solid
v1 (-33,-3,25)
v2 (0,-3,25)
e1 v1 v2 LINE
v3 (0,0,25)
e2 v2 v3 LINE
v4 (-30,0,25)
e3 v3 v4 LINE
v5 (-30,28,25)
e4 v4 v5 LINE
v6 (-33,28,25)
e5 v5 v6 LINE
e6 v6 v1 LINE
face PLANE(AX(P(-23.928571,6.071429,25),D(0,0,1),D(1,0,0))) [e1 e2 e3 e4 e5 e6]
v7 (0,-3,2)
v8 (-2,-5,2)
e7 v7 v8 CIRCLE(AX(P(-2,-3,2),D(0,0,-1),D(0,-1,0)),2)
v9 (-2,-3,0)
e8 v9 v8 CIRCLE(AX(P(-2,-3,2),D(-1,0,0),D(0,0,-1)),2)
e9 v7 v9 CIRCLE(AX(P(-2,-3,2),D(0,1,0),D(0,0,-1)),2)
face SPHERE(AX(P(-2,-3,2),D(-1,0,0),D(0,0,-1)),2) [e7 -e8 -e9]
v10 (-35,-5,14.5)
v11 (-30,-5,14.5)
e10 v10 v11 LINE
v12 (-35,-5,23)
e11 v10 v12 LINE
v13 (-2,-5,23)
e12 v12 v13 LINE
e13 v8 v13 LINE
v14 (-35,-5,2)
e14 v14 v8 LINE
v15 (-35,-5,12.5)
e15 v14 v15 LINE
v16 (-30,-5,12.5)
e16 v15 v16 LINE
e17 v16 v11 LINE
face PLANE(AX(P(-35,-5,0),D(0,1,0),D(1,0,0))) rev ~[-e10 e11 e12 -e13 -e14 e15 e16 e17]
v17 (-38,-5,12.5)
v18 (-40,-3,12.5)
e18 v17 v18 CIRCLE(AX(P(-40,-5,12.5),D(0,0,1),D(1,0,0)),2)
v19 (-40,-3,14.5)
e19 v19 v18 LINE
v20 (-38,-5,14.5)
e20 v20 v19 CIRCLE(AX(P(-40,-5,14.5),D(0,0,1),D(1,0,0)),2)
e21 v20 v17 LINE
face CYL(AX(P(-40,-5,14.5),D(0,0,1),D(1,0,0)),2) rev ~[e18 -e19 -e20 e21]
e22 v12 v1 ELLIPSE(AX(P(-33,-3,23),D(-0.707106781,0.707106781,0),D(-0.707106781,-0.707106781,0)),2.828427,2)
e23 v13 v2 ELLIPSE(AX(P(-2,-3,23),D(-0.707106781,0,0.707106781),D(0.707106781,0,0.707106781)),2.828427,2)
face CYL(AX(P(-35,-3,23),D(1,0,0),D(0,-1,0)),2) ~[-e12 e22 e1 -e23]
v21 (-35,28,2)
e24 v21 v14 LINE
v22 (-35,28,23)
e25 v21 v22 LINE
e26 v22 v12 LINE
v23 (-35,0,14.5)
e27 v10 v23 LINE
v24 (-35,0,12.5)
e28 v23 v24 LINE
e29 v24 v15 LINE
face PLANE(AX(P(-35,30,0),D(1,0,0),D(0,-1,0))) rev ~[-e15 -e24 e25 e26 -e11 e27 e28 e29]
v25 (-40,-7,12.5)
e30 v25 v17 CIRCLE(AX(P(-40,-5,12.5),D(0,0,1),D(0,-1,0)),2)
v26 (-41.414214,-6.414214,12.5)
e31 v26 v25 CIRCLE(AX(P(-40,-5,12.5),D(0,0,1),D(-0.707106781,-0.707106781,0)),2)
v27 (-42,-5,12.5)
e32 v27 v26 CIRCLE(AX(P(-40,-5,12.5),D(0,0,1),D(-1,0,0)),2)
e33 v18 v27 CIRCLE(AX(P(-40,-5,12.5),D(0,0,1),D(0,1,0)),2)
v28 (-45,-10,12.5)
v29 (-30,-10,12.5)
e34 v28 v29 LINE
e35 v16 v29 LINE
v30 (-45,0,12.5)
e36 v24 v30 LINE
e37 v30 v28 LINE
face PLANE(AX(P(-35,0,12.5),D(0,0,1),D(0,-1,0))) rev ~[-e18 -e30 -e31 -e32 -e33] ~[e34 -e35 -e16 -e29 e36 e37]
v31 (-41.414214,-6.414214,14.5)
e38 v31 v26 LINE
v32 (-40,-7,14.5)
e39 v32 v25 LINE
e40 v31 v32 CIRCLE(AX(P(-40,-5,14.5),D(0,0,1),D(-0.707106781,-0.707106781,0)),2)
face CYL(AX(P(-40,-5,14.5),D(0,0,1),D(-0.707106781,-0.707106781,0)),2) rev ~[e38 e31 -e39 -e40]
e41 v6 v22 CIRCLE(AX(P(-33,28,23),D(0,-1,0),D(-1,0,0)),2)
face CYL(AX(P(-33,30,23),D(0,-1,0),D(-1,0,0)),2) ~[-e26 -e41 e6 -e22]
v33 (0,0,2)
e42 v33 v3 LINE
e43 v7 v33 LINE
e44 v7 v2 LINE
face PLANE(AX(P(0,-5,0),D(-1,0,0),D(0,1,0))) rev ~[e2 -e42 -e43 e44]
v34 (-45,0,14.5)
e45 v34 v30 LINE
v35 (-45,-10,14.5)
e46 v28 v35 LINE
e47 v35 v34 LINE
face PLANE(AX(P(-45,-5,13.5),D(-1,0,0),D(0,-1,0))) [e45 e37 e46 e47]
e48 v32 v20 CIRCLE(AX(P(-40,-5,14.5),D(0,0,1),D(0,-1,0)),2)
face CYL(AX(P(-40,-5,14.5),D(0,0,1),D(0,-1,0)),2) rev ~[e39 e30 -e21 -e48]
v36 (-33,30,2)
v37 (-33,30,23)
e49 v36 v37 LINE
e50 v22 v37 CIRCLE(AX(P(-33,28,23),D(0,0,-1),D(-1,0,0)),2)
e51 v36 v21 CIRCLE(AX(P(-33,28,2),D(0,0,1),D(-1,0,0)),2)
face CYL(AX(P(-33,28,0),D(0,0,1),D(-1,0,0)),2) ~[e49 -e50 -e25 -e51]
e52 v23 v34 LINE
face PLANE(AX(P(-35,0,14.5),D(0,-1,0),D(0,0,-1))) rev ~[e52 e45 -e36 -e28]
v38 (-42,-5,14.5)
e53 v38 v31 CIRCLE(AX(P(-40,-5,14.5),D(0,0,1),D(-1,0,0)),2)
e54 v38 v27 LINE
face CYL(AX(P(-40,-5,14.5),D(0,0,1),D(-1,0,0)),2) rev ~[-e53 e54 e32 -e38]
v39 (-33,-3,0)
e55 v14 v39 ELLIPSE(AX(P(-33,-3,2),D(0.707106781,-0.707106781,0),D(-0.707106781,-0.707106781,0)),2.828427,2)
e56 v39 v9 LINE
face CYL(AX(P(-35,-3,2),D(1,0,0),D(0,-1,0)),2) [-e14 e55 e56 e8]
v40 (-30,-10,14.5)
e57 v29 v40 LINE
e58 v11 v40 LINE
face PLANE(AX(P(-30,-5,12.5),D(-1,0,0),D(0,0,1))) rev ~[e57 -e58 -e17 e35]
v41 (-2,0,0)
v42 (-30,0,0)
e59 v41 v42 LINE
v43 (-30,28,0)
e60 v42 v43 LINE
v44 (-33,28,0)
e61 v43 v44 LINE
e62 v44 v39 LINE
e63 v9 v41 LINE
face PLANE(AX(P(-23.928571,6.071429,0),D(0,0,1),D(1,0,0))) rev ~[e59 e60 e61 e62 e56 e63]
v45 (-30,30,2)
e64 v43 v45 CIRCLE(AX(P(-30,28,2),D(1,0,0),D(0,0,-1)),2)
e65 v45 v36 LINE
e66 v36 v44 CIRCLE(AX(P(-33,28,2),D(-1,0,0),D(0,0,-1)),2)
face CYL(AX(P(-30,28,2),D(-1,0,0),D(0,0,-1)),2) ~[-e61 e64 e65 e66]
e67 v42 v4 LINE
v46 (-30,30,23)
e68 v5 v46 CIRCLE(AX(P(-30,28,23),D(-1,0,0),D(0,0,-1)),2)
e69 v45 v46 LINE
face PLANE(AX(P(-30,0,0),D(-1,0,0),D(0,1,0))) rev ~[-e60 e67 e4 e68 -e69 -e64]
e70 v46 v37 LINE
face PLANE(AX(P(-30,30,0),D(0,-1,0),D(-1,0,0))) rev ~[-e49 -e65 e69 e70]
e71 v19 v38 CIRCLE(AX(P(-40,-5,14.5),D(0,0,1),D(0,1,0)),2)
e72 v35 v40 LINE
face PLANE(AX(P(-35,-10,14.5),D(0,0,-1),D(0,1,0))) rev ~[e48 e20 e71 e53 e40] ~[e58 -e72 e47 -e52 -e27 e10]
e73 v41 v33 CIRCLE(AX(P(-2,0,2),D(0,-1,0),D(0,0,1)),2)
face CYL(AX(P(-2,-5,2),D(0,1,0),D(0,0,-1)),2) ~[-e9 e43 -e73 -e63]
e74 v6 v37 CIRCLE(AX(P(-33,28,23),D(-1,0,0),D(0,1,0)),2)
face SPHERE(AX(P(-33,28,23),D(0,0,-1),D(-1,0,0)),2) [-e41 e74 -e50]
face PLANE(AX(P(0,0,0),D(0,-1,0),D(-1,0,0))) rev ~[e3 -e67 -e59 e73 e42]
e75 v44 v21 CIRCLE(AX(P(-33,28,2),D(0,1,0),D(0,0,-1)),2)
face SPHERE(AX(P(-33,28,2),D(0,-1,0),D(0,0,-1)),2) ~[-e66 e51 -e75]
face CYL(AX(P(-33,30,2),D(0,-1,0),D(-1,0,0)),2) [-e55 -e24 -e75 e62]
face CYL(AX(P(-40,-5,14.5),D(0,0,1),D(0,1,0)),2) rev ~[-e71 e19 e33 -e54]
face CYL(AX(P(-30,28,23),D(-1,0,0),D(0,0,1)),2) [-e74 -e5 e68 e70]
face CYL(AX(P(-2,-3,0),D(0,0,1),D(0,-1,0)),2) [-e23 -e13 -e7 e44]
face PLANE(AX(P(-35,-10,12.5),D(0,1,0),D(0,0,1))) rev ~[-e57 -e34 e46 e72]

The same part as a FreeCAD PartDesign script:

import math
import FreeCAD as App
import Part
import Sketcher
from FreeCAD import Vector
Q = App.Units.Quantity


def edges_at(feature, points):
    """Names of the edges that pass closest to the given points."""
    edges = feature.Shape.Edges
    near = lambda p: min(range(len(edges)), key=lambda i: edges[i].distToShape(Part.Vertex(*p))[0])
    return sorted({f"Edge{near(p) + 1}" for p in points})


def add_polygon(sketch, points):
    """Adds a closed chain of lines whose ends are joined by coincident constraints."""
    first, n = sketch.GeometryCount, len(points)
    for a, b in zip(points, points[1:] + points[:1]):
        sketch.addGeometry(Part.LineSegment(App.Vector(*a, 0), App.Vector(*b, 0)), False)
    for i in range(n):
        sketch.addConstraint(Sketcher.Constraint("Coincident", first + i, 2, first + (i + 1) % n, 1))

doc = App.newDocument("Part")
body = doc.addObject("PartDesign::Body", "Body")

# Sketch on XY plane
sketch1 = body.newObject("Sketcher::SketchObject", "Sketch")
sketch1.AttachmentSupport = (doc.getObject("XY_Plane"), [""])
sketch1.MapMode = "FlatFace"
add_polygon(sketch1, [(0, -5), (0, 0), (-30, 0), (-30, 30), (-35, 30), (-35, -5)])  # lines 0-5
sketch1.addConstraint(Sketcher.Constraint("Vertical", 0))
sketch1.addConstraint(Sketcher.Constraint("Horizontal", 1))
sketch1.addConstraint(Sketcher.Constraint("Vertical", 2))
sketch1.addConstraint(Sketcher.Constraint("Horizontal", 3))
sketch1.addConstraint(Sketcher.Constraint("Vertical", 4))
sketch1.addConstraint(Sketcher.Constraint("Horizontal", 5))
sketch1.addConstraint(Sketcher.Constraint("Coincident", 0, 2, -1, 1))
sketch1.addConstraint(Sketcher.Constraint("Equal", 3, 0))
sketch1.addConstraint(Sketcher.Constraint("Equal", 1, 2))
sketch1.addConstraint(Sketcher.Constraint("DistanceX", 1, 2, 1, 1, Q("30 mm")))
sketch1.addConstraint(Sketcher.Constraint("DistanceX", 3, 2, 3, 1, Q("5 mm")))
pad1 = body.newObject("PartDesign::Pad", "Pad")
pad1.Profile = sketch1
pad1.Length = 25

# Sketch on XZ plane
sketch2 = body.newObject("Sketcher::SketchObject", "Sketch001")
sketch2.AttachmentSupport = (doc.getObject("XZ_Plane"), [""])
sketch2.MapMode = "FlatFace"
sketch2.AttachmentOffset = App.Placement(Vector(0, 0, 5), App.Rotation())
add_polygon(sketch2, [(-35, 14.5), (-35, 12.5), (-30, 12.5), (-30, 14.5)])  # lines 0-3
sketch2.addConstraint(Sketcher.Constraint("Vertical", 0))
sketch2.addConstraint(Sketcher.Constraint("Horizontal", 1))
sketch2.addConstraint(Sketcher.Constraint("Vertical", 2))
sketch2.addConstraint(Sketcher.Constraint("Horizontal", 3))
sketch2.addConstraint(Sketcher.Constraint("DistanceX", 1, 1, 1, 2, Q("5 mm")))
sketch2.addConstraint(Sketcher.Constraint("DistanceY", 0, 2, 0, 1, Q("2 mm")))
sketch2.addConstraint(Sketcher.Constraint("DistanceX", 0, 2, -1, 1, Q("35 mm")))
sketch2.addConstraint(Sketcher.Constraint("DistanceY", -1, 1, 0, 2, Q("12.5 mm")))
pad2 = body.newObject("PartDesign::Pad", "Pad001")
pad2.Profile = sketch2
pad2.Length = 5

# Sketch on YZ plane
sketch3 = body.newObject("Sketcher::SketchObject", "Sketch002")
sketch3.AttachmentSupport = (doc.getObject("YZ_Plane"), [""])
sketch3.MapMode = "FlatFace"
sketch3.AttachmentOffset = App.Placement(Vector(0, 0, -35), App.Rotation())
add_polygon(sketch3, [(-10, 14.5), (0, 14.5), (0, 12.5), (-10, 12.5)])  # lines 0-3
sketch3.addConstraint(Sketcher.Constraint("Horizontal", 0))
sketch3.addConstraint(Sketcher.Constraint("Vertical", 1))
sketch3.addConstraint(Sketcher.Constraint("Horizontal", 2))
sketch3.addConstraint(Sketcher.Constraint("Vertical", 3))
sketch3.addConstraint(Sketcher.Constraint("PointOnObject", 0, 2, -2))
sketch3.addConstraint(Sketcher.Constraint("DistanceX", 0, 1, 0, 2, Q("10 mm")))
sketch3.addConstraint(Sketcher.Constraint("DistanceY", 1, 2, 1, 1, Q("2 mm")))
sketch3.addConstraint(Sketcher.Constraint("DistanceY", -1, 1, 0, 2, Q("14.5 mm")))
pad3 = body.newObject("PartDesign::Pad", "Pad002")
pad3.Profile = sketch3
pad3.Length = 10
pad3.Reversed = True

# Sketch on XY plane
sketch4 = body.newObject("Sketcher::SketchObject", "Sketch003")
sketch4.AttachmentSupport = (doc.getObject("XY_Plane"), [""])
sketch4.MapMode = "FlatFace"
sketch4.AttachmentOffset = App.Placement(Vector(0, 0, 14.5), App.Rotation())
sketch4.addGeometry(Part.ArcOfCircle(Part.Circle(Vector(-40, -5, 0), Vector(0, 0, 1), 2), math.radians(-135), math.radians(-90)), False)
sketch4.addGeometry(Part.ArcOfCircle(Part.Circle(Vector(-40, -5, 0), Vector(0, 0, 1), 2), math.radians(-90), math.radians(0)), False)
sketch4.addGeometry(Part.ArcOfCircle(Part.Circle(Vector(-40, -5, 0), Vector(0, 0, 1), 2), math.radians(0), math.radians(90)), False)
sketch4.addGeometry(Part.ArcOfCircle(Part.Circle(Vector(-40, -5, 0), Vector(0, 0, 1), 2), math.radians(90), math.radians(180)), False)
sketch4.addGeometry(Part.ArcOfCircle(Part.Circle(Vector(-40, -5, 0), Vector(0, 0, 1), 2), math.radians(180), math.radians(225)), False)
sketch4.addConstraint(Sketcher.Constraint("Tangent", 0, 2, 1, 1))
sketch4.addConstraint(Sketcher.Constraint("Tangent", 1, 2, 2, 1))
sketch4.addConstraint(Sketcher.Constraint("Tangent", 2, 2, 3, 1))
sketch4.addConstraint(Sketcher.Constraint("Tangent", 3, 2, 4, 1))
sketch4.addConstraint(Sketcher.Constraint("Tangent", 4, 2, 0, 1))
sketch4.addConstraint(Sketcher.Constraint("Coincident", 2, 3, 0, 3))
sketch4.addConstraint(Sketcher.Constraint("Horizontal", 4, 3, 1, 2))
sketch4.addConstraint(Sketcher.Constraint("Horizontal", 1, 2, 3, 2))
sketch4.addConstraint(Sketcher.Constraint("Vertical", 4, 3, 0, 2))
sketch4.addConstraint(Sketcher.Constraint("Vertical", 0, 2, 2, 2))
sketch4.addConstraint(Sketcher.Constraint("Radius", 0, Q("2 mm")))
sketch4.addConstraint(Sketcher.Constraint("DistanceX", 0, 3, -1, 1, Q("40 mm")))
sketch4.addConstraint(Sketcher.Constraint("DistanceY", 0, 3, -1, 1, Q("5 mm")))
sketch4.addConstraint(Sketcher.Constraint("DistanceX", 4, 2, -1, 1, Q("41.414214 mm")))
pocket1 = body.newObject("PartDesign::Pocket", "Pocket")
pocket1.Profile = sketch4
pocket1.Length = 25
doc.recompute()

fillet = body.newObject("PartDesign::Fillet", "Fillet")
fillet.Base = (pocket1, edges_at(pocket1, [
    (-35, 12.5, 0),
    (-17.5, -5, 0),
    (0, -2.5, 0),
    (-32.5, 30, 0),
    (-35, 30, 12.5),
    (-35, 12.5, 25),
    (-32.5, 30, 25),
    (-17.5, -5, 25),
    (0, -5, 12.5),
]))
fillet.Radius = 2

doc.recompute()
